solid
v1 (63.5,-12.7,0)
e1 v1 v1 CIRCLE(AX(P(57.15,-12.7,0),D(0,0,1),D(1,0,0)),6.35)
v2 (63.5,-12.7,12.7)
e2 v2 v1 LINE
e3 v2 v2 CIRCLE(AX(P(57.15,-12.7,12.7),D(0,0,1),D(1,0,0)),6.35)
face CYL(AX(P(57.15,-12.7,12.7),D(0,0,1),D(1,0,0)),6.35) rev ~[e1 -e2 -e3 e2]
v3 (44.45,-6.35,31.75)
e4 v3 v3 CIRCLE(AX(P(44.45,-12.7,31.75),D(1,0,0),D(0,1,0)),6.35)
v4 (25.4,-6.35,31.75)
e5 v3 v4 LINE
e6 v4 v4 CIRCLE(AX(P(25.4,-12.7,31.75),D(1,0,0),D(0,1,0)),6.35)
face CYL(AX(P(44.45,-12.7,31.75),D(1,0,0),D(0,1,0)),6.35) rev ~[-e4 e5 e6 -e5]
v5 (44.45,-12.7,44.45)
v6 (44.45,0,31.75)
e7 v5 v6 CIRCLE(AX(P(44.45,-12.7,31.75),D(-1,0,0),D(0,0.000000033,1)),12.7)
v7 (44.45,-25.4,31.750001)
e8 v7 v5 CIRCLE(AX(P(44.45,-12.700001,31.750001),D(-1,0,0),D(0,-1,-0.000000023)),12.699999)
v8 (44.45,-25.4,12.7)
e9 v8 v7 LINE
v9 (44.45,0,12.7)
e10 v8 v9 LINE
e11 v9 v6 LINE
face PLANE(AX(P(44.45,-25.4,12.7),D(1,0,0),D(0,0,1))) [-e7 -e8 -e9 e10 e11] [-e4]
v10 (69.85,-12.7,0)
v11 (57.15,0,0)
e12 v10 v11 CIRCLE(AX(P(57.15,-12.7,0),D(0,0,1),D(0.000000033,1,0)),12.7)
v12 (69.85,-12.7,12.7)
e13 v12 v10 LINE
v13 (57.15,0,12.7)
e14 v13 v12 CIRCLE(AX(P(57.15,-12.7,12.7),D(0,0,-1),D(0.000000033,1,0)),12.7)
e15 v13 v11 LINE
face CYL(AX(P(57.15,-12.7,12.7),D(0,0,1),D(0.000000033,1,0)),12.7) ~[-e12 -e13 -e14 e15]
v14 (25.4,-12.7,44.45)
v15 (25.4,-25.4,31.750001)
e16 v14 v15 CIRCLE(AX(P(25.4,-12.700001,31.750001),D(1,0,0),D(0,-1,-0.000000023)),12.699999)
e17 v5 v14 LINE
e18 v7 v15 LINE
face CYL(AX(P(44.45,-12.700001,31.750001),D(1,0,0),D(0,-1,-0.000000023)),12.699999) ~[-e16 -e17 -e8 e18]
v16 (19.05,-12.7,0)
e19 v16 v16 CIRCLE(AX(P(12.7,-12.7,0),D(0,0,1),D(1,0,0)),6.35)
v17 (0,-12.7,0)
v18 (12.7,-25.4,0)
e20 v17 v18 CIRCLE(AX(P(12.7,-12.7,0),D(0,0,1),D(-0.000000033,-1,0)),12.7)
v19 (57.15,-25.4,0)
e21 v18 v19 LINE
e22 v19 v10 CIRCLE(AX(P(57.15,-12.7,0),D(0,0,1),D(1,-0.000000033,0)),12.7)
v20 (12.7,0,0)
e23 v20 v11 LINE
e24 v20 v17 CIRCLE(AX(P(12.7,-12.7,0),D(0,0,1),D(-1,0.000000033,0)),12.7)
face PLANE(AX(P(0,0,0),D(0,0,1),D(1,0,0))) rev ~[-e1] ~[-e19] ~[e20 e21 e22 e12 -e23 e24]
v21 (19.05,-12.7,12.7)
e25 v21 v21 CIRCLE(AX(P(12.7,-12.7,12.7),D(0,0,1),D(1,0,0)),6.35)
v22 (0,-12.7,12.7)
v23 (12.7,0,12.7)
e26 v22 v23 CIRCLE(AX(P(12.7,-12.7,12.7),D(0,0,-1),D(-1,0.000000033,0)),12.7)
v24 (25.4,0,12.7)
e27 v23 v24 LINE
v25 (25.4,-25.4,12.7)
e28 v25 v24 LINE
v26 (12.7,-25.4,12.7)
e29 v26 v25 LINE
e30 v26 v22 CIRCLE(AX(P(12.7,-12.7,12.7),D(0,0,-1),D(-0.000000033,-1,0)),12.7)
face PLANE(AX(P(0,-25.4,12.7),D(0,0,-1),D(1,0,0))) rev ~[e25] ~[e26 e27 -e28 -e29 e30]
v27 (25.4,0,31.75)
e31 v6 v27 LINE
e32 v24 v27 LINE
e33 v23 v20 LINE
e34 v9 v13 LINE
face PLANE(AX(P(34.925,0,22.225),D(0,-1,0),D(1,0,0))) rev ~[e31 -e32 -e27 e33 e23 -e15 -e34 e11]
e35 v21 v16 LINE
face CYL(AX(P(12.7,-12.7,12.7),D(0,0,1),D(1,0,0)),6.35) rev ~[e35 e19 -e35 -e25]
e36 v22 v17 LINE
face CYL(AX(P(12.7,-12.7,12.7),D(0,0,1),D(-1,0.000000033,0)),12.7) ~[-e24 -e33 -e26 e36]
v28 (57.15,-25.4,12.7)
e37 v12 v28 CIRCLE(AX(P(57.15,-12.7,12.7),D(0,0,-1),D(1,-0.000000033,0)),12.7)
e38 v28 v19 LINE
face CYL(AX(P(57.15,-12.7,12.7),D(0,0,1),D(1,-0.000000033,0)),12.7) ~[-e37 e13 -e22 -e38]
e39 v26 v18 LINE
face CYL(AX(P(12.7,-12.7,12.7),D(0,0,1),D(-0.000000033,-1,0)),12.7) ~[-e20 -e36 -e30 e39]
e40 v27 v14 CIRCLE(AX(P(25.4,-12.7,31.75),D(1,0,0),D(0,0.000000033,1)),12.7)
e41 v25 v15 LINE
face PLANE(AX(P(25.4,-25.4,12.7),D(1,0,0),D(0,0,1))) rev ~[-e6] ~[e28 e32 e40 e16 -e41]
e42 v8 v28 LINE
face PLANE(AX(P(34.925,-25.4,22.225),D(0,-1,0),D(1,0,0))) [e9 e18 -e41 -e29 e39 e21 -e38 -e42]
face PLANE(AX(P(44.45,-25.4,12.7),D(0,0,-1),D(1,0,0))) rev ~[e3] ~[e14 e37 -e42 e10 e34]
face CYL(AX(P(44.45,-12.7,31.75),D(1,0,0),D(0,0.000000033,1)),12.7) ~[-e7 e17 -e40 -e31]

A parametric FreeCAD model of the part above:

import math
import FreeCAD as App
import Part
import Sketcher

V = App.Vector
Q = App.Units.Quantity


def add_polygon(sketch, points):
    """Adds a closed chain of lines whose ends are joined by coincident constraints."""
    first, n = sketch.GeometryCount, len(points)
    for a, b in zip(points, points[1:] + points[:1]):
        sketch.addGeometry(Part.LineSegment(App.Vector(*a, 0), App.Vector(*b, 0)), False)
    for i in range(n):
        sketch.addConstraint(Sketcher.Constraint("Coincident", first + i, 2, first + (i + 1) % n, 1))

doc = App.newDocument("Part")
body = doc.addObject("PartDesign::Body", "Body")

# Sketch on XZ plane
sketch1 = doc.addObject("Sketcher::SketchObject", "Sketch")
body.addObject(sketch1)
sketch1.AttachmentSupport = (doc.XZ_Plane, [""])
sketch1.MapMode = "FlatFace"
add_polygon(sketch1, [(0, 44), (0, 0), (70, 0), (70, 44)])  # lines 0-3
sketch1.addConstraint([
    Sketcher.Constraint("Vertical", 0),
    Sketcher.Constraint("Horizontal", 1),
    Sketcher.Constraint("Vertical", 2),
    Sketcher.Constraint("Horizontal", 3),
    Sketcher.Constraint("Coincident", 0, 2, -1, 1),
    Sketcher.Constraint("DistanceX", 1, 1, 1, 2, Q("2.75 in")),
    Sketcher.Constraint("DistanceY", 0, 2, 0, 1, Q("1.75 in")),
])
pad1 = doc.addObject("PartDesign::Pad", "Pad")
body.addObject(pad1)
pad1.Profile = sketch1
pad1.Length = Q("1 in")

# Sketch on XZ plane
sketch2 = doc.addObject("Sketcher::SketchObject", "Sketch001")
body.addObject(sketch2)
sketch2.AttachmentSupport = (doc.XZ_Plane, [""])
sketch2.MapMode = "FlatFace"
sketch2.AttachmentOffset = App.Placement(V(0, 0, 1 * 25.4), App.Rotation())
add_polygon(sketch2, [(0, 44), (0, 13), (25, 13), (25, 44)])  # lines 0-3
add_polygon(sketch2, [(44, 44), (44, 13), (70, 13), (70, 44)])  # lines 4-7
sketch2.addConstraint([
    Sketcher.Constraint("Vertical", 0),
    Sketcher.Constraint("Horizontal", 1),
    Sketcher.Constraint("Vertical", 2),
    Sketcher.Constraint("Horizontal", 3),
    Sketcher.Constraint("Vertical", 4),
    Sketcher.Constraint("Horizontal", 5),
    Sketcher.Constraint("Vertical", 6),
    Sketcher.Constraint("Horizontal", 7),
    Sketcher.Constraint("PointOnObject", 0, 2, -2),
    Sketcher.Constraint("Horizontal", 1, 2, 4, 2),
    Sketcher.Constraint("Horizontal", 3, 2, 6, 2),
    Sketcher.Constraint("Equal", 3, 5),
    Sketcher.Constraint("DistanceX", 1, 1, 1, 2, Q("1 in")),
    Sketcher.Constraint("DistanceY", 0, 2, 0, 1, Q("1.25 in")),
    Sketcher.Constraint("DistanceY", -1, 1, 0, 2, Q("0.5 in")),
    Sketcher.Constraint("DistanceX", -1, 1, 4, 2, Q("1.75 in")),
])
pocket1 = doc.addObject("PartDesign::Pocket", "Pocket")
body.addObject(pocket1)
pocket1.Profile = sketch2
pocket1.Length = Q("1 in")

# Sketch on YZ plane
sketch3 = doc.addObject("Sketcher::SketchObject", "Sketch002")
body.addObject(sketch3)
sketch3.AttachmentSupport = (doc.YZ_Plane, [""])
sketch3.MapMode = "FlatFace"
sketch3.AttachmentOffset = App.Placement(V(0, 0, 1.75 * 25.4), App.Rotation())
sketch3.addGeometry([
    Part.ArcOfCircle(Part.Circle(V(-13, 32, 0), V(0, 0, 1), 13), math.radians(90), math.radians(180)),  # 0
    Part.LineSegment(V(-13, 44, 0), V(-25, 44, 0)),  # 1
    Part.LineSegment(V(-25, 44, 0), V(-25, 32, 0)),  # 2
    Part.ArcOfCircle(Part.Circle(V(-13, 32, 0), V(0, 0, 1), 13), math.radians(0), math.radians(90)),  # 3
    Part.LineSegment(V(0, 32, 0), V(0, 44, 0)),  # 4
    Part.LineSegment(V(0, 44, 0), V(-13, 44, 0)),  # 5
], False)
sketch3.addConstraint([
    Sketcher.Constraint("Tangent", 0, 1, 1, 1),
    Sketcher.Constraint("Coincident", 1, 2, 2, 1),
    Sketcher.Constraint("Tangent", 2, 2, 0, 2),
    Sketcher.Constraint("Tangent", 3, 1, 4, 1),
    Sketcher.Constraint("Coincident", 4, 2, 5, 1),
    Sketcher.Constraint("Tangent", 5, 2, 3, 2),
    Sketcher.Constraint("Horizontal", 1),
    Sketcher.Constraint("Vertical", 2),
    Sketcher.Constraint("Vertical", 4),
    Sketcher.Constraint("Horizontal", 5),
    Sketcher.Constraint("Coincident", 3, 3, 0, 3),
    Sketcher.Constraint("Equal", 0, 3),
    Sketcher.Constraint("PointOnObject", 3, 1, -2),
    Sketcher.Constraint("Radius", 0, Q("0.4999999 in")),
    Sketcher.Constraint("DistanceY", -1, 1, 0, 3, Q("1.2500001 in")),
])
pocket2 = doc.addObject("PartDesign::Pocket", "Pocket001")
body.addObject(pocket2)
pocket2.Profile = sketch3
pocket2.Length = Q("1 in")

# Sketch on YZ plane
sketch4 = doc.addObject("Sketcher::SketchObject", "Sketch003")
body.addObject(sketch4)
sketch4.AttachmentSupport = (doc.YZ_Plane, [""])
sketch4.MapMode = "FlatFace"
sketch4.AttachmentOffset = App.Placement(V(0, 0, 1.75 * 25.4), App.Rotation())
sketch4.addGeometry(Part.Circle(V(-13, 32, 0), V(0, 0, 1), 6), False)
sketch4.addConstraint([
    Sketcher.Constraint("Diameter", 0, Q("0.5 in")),
    Sketcher.Constraint("DistanceX", 0, 3, -1, 1, Q("0.5 in")),
    Sketcher.Constraint("DistanceY", -1, 1, 0, 3, Q("1.25 in")),
])
pocket3 = doc.addObject("PartDesign::Pocket", "Pocket002")
body.addObject(pocket3)
pocket3.Profile = sketch4
pocket3.Length = Q("1 in")

# Sketch on XY plane
sketch5 = doc.addObject("Sketcher::SketchObject", "Sketch004")
body.addObject(sketch5)
sketch5.AttachmentSupport = (doc.XY_Plane, [""])
sketch5.MapMode = "FlatFace"
sketch5.AttachmentOffset = App.Placement(V(0, 0, 0.5 * 25.4), App.Rotation())
sketch5.addGeometry([
    Part.ArcOfCircle(Part.Circle(V(57, -13, 0), V(0, 0, 1), 13), math.radians(0), math.radians(90)),  # 0
    Part.LineSegment(V(70, -13, 0), V(70, 0, 0)),  # 1
    Part.LineSegment(V(70, 0, 0), V(57, 0, 0)),  # 2
    Part.ArcOfCircle(Part.Circle(V(57, -13, 0), V(0, 0, 1), 13), math.radians(-90), math.radians(0)),  # 3
    Part.LineSegment(V(57, -25, 0), V(70, -25, 0)),  # 4
    Part.LineSegment(V(70, -25, 0), V(70, -13, 0)),  # 5
], False)
sketch5.addConstraint([
    Sketcher.Constraint("Tangent", 0, 1, 1, 1),
    Sketcher.Constraint("Coincident", 1, 2, 2, 1),
    Sketcher.Constraint("Tangent", 2, 2, 0, 2),
    Sketcher.Constraint("Tangent", 3, 1, 4, 1),
    Sketcher.Constraint("Coincident", 4, 2, 5, 1),
    Sketcher.Constraint("Tangent", 5, 2, 3, 2),
    Sketcher.Constraint("Vertical", 1),
    Sketcher.Constraint("Horizontal", 2),
    Sketcher.Constraint("Horizontal", 4),
    Sketcher.Constraint("Vertical", 5),
    Sketcher.Constraint("Coincident", 3, 3, 0, 3),
    Sketcher.Constraint("Equal", 0, 3),
    Sketcher.Constraint("PointOnObject", 1, 2, -1),
    Sketcher.Constraint("Radius", 0, Q("0.5 in")),
    Sketcher.Constraint("DistanceX", -1, 1, 0, 3, Q("2.25 in")),
])
pocket4 = doc.addObject("PartDesign::Pocket", "Pocket003")
body.addObject(pocket4)
pocket4.Profile = sketch5
pocket4.Length = Q("1 in")

# Sketch on XY plane
sketch6 = doc.addObject("Sketcher::SketchObject", "Sketch005")
body.addObject(sketch6)
sketch6.AttachmentSupport = (doc.XY_Plane, [""])
sketch6.MapMode = "FlatFace"
sketch6.AttachmentOffset = App.Placement(V(0, 0, 0.5 * 25.4), App.Rotation())
sketch6.addGeometry([
    Part.ArcOfCircle(Part.Circle(V(13, -13, 0), V(0, 0, 1), 13), math.radians(90), math.radians(180)),  # 0
    Part.LineSegment(V(13, 0, 0), V(0, 0, 0)),  # 1
    Part.LineSegment(V(0, 0, 0), V(0, -13, 0)),  # 2
    Part.ArcOfCircle(Part.Circle(V(13, -13, 0), V(0, 0, 1), 13), math.radians(-180), math.radians(-90)),  # 3
    Part.LineSegment(V(0, -13, 0), V(0, -25, 0)),  # 4
    Part.LineSegment(V(0, -25, 0), V(13, -25, 0)),  # 5
], False)
sketch6.addConstraint([
    Sketcher.Constraint("Tangent", 0, 1, 1, 1),
    Sketcher.Constraint("Coincident", 1, 2, 2, 1),
    Sketcher.Constraint("Tangent", 2, 2, 0, 2),
    Sketcher.Constraint("Tangent", 3, 1, 4, 1),
    Sketcher.Constraint("Coincident", 4, 2, 5, 1),
    Sketcher.Constraint("Tangent", 5, 2, 3, 2),
    Sketcher.Constraint("Horizontal", 1),
    Sketcher.Constraint("Vertical", 2),
    Sketcher.Constraint("Vertical", 4),
    Sketcher.Constraint("Horizontal", 5),
    Sketcher.Constraint("Coincident", 1, 2, -1, 1),
    Sketcher.Constraint("Coincident", 3, 3, 0, 3),
    Sketcher.Constraint("Equal", 0, 3),
    Sketcher.Constraint("Radius", 0, Q("0.5 in")),
])
pocket5 = doc.addObject("PartDesign::Pocket", "Pocket004")
body.addObject(pocket5)
pocket5.Profile = sketch6
pocket5.Length = Q("1 in")

# Sketch on XY plane
sketch7 = doc.addObject("Sketcher::SketchObject", "Sketch006")
body.addObject(sketch7)
sketch7.AttachmentSupport = (doc.XY_Plane, [""])
sketch7.MapMode = "FlatFace"
sketch7.AttachmentOffset = App.Placement(V(0, 0, 0.5 * 25.4), App.Rotation())
sketch7.addGeometry([
    Part.Circle(V(13, -13, 0), V(0, 0, 1), 6),
    Part.Circle(V(57, -13, 0), V(0, 0, 1), 6),
], False)
sketch7.addConstraint([
    Sketcher.Constraint("Equal", 0, 1),
    Sketcher.Constraint("Horizontal", 0, 3, 1, 3),
    Sketcher.Constraint("Diameter", 0, Q("0.5 in")),
    Sketcher.Constraint("DistanceX", -1, 1, 0, 3, Q("0.5 in")),
    Sketcher.Constraint("DistanceY", 0, 3, -1, 1, Q("0.5 in")),
    Sketcher.Constraint("DistanceX", -1, 1, 1, 3, Q("2.25 in")),
])
pocket6 = doc.addObject("PartDesign::Pocket", "Pocket005")
body.addObject(pocket6)
pocket6.Profile = sketch7
pocket6.Length = Q("1 in")

doc.recompute()
